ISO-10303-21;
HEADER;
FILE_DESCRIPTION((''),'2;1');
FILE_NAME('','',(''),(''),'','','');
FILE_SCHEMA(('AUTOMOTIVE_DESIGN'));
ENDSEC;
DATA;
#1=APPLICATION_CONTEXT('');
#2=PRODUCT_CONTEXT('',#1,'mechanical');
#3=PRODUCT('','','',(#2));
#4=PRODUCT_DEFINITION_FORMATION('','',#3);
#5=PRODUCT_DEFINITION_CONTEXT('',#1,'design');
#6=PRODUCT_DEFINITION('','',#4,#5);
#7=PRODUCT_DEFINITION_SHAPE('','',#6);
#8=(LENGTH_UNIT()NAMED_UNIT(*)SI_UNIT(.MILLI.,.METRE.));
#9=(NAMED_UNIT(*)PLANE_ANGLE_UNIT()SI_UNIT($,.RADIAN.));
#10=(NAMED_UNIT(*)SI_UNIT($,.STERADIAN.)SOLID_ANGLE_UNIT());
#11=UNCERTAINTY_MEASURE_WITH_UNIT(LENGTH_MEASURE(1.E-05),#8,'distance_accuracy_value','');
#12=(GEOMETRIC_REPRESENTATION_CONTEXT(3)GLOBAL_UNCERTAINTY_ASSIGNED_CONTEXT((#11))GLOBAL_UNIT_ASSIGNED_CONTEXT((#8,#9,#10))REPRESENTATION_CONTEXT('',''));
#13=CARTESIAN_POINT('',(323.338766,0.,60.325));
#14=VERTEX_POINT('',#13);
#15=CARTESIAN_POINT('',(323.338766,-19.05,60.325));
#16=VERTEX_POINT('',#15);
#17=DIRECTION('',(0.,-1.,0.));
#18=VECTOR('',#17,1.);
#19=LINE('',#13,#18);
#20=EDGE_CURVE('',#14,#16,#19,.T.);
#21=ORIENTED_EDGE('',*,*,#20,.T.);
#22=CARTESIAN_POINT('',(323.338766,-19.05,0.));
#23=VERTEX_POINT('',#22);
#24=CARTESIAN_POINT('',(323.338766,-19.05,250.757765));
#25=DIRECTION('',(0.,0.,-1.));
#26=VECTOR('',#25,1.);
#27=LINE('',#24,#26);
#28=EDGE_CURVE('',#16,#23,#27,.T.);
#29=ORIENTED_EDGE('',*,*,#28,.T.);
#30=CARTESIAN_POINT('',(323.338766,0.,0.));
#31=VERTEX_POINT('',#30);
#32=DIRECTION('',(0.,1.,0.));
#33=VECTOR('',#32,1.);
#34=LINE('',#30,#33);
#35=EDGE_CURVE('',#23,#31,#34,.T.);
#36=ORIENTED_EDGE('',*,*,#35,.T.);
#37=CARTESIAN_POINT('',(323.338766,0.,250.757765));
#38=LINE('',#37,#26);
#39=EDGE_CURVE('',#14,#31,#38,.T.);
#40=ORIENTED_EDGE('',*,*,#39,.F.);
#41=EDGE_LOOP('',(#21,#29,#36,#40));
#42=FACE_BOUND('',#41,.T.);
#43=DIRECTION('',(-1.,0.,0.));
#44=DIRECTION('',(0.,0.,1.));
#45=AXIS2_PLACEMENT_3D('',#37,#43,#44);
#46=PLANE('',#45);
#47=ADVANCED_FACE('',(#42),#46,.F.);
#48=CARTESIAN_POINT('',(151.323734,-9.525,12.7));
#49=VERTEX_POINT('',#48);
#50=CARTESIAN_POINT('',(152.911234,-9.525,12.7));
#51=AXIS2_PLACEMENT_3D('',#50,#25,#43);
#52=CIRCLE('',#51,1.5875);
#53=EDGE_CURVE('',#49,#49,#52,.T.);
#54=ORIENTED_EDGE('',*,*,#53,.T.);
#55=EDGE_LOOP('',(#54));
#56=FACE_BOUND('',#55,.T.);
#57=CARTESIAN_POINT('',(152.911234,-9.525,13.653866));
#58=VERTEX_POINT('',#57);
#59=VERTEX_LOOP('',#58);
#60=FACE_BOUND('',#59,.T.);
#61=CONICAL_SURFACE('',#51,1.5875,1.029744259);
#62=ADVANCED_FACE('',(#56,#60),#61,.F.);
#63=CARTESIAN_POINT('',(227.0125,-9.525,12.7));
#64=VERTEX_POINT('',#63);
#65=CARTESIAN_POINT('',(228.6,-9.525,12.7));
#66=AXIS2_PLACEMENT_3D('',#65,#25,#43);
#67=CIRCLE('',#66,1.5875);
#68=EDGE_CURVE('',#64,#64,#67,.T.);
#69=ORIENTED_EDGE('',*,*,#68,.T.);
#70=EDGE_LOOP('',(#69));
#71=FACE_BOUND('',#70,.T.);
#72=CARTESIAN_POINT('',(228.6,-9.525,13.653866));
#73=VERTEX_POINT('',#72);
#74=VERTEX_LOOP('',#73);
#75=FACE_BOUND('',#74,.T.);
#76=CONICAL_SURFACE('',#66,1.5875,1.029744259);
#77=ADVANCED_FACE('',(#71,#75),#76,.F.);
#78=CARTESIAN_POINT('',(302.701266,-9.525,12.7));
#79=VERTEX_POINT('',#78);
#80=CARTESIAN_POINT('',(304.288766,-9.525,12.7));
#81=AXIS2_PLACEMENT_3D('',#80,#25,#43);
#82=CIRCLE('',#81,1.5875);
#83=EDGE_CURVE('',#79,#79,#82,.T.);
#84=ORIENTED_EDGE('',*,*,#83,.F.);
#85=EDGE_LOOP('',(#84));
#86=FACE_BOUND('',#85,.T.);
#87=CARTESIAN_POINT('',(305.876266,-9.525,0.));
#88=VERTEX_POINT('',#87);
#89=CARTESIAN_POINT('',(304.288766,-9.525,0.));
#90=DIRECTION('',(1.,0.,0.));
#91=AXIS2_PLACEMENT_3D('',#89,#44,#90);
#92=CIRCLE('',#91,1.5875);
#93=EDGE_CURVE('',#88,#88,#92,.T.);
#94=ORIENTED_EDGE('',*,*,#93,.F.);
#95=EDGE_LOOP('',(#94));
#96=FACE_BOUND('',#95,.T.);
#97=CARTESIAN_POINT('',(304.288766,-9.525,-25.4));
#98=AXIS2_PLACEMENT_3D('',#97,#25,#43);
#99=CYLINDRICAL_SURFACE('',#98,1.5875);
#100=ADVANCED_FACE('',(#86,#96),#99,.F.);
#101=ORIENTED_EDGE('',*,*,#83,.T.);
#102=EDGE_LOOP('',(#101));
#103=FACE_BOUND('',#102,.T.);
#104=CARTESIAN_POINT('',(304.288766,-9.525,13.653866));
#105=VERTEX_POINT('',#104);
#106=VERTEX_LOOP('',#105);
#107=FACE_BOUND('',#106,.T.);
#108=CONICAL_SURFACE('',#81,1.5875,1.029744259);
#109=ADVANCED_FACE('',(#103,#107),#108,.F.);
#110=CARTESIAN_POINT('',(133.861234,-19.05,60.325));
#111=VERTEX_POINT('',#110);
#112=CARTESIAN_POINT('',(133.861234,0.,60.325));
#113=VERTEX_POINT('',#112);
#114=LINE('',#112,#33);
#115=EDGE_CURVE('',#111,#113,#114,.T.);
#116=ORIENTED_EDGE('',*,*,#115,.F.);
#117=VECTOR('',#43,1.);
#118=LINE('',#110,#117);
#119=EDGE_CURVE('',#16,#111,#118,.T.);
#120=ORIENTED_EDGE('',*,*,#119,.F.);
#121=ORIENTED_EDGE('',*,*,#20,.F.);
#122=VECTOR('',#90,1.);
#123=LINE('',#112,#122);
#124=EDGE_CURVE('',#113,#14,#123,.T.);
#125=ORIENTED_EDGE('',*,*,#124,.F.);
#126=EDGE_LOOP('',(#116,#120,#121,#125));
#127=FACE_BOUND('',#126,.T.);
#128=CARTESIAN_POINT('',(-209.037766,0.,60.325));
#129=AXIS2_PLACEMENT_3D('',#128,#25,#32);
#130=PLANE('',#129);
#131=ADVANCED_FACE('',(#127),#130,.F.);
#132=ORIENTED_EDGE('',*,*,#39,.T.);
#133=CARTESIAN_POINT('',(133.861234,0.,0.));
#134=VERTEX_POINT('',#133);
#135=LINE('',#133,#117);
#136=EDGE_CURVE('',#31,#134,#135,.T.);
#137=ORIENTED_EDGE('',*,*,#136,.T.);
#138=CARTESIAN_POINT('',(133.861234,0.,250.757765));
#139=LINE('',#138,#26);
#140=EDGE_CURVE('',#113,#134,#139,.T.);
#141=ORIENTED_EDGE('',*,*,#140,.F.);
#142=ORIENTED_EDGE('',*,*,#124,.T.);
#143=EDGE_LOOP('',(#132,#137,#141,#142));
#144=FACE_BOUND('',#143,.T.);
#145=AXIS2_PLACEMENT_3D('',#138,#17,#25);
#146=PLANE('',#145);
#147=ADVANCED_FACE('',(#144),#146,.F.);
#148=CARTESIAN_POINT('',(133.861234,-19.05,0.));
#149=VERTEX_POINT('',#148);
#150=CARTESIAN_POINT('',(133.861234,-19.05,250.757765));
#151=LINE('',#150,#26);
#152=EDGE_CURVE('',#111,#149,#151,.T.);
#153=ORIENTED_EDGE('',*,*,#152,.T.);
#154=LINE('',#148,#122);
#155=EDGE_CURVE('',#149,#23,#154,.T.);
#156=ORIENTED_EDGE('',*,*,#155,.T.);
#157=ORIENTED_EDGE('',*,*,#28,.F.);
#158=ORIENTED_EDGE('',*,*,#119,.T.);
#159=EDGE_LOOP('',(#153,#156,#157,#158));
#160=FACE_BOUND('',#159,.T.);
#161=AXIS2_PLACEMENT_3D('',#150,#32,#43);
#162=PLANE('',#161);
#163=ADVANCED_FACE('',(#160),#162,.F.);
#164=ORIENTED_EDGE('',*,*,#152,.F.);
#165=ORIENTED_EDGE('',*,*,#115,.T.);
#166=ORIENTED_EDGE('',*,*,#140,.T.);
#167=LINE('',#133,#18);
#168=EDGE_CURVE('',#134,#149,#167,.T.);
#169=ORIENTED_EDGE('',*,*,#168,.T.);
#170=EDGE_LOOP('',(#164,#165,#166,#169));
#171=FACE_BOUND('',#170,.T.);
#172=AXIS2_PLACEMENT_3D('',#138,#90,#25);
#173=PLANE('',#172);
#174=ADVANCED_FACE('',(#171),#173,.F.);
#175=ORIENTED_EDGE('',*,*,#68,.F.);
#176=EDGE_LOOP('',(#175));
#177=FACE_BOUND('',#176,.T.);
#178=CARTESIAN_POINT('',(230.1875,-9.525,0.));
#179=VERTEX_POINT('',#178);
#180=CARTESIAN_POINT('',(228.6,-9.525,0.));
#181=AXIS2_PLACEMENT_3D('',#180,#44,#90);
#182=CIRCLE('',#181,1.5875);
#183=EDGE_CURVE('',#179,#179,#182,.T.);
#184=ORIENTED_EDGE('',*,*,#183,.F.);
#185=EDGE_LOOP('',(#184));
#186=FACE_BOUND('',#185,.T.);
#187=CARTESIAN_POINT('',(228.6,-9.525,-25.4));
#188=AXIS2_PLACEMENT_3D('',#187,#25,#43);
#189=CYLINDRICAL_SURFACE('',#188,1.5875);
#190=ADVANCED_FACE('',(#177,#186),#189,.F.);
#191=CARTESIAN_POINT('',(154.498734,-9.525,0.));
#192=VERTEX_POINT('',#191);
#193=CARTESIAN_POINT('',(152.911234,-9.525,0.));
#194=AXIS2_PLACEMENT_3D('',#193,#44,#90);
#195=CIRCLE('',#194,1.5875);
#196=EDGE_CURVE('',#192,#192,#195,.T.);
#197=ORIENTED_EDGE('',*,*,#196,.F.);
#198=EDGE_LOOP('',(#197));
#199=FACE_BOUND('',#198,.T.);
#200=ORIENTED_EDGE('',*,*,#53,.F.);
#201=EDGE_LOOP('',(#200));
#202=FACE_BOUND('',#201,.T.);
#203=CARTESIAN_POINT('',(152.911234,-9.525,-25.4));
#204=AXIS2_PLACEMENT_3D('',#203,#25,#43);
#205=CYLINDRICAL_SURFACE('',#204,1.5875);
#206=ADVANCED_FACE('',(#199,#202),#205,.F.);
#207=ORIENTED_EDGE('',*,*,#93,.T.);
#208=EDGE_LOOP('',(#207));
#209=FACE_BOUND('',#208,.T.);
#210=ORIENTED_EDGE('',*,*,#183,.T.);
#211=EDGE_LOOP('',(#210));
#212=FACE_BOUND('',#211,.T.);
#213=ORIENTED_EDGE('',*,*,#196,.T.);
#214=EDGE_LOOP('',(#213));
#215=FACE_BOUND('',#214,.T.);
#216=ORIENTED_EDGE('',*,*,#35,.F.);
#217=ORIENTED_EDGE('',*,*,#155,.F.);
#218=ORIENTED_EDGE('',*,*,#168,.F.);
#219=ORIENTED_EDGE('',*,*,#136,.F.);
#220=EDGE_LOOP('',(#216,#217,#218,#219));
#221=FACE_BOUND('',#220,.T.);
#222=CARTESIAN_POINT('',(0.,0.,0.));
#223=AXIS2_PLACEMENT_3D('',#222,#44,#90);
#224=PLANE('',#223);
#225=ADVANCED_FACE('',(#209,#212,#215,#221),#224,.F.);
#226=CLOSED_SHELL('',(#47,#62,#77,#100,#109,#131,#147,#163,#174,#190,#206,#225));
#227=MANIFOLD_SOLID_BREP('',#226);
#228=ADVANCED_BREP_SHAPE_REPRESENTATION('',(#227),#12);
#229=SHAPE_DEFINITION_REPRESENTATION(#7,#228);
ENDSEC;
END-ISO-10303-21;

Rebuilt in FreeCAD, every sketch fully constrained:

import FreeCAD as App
import Part
import Sketcher

V = App.Vector
Q = App.Units.Quantity

doc = App.newDocument("Part")
body = doc.addObject("PartDesign::Body", "Body")

sketch1 = body.newObject("Sketcher::SketchObject", "Sketch")
sketch1.AttachmentSupport = (doc.getObject("XY_Plane"), [""])
sketch1.MapMode = "FlatFace"
sketch1.addGeometry([
    Part.LineSegment(V(133.861234, 0, 0), V(133.861234, -19.05, 0)),
    Part.LineSegment(V(133.861234, -19.05, 0), V(323.338766, -19.05, 0)),
    Part.LineSegment(V(323.338766, -19.05, 0), V(323.338766, 0, 0)),
    Part.LineSegment(V(323.338766, 0, 0), V(133.861234, 0, 0)),
], False)
sketch1.addConstraint([
    Sketcher.Constraint("Coincident", 0, 2, 1, 1),
    Sketcher.Constraint("Coincident", 1, 2, 2, 1),
    Sketcher.Constraint("Coincident", 2, 2, 3, 1),
    Sketcher.Constraint("Coincident", 3, 2, 0, 1),
    Sketcher.Constraint("Vertical", 0),
    Sketcher.Constraint("Horizontal", 1),
    Sketcher.Constraint("Vertical", 2),
    Sketcher.Constraint("Horizontal", 3),
    Sketcher.Constraint("PointOnObject", 2, 2, -1),
    Sketcher.Constraint("DistanceY", 0, 2, 0, 1, Q("0.75 in")),
    Sketcher.Constraint("DistanceX", 1, 1, 1, 2, Q("189.477533 mm")),
    Sketcher.Constraint("DistanceX", -1, 1, 0, 2, Q("133.861234 mm")),
])
pad1 = body.newObject("PartDesign::Pad", "Pad")
pad1.Profile = sketch1
pad1.Length = Q("2.375 in")

sketch2 = body.newObject("Sketcher::SketchObject", "Sketch001")
sketch2.AttachmentSupport = (doc.getObject("XY_Plane"), [""])
sketch2.MapMode = "FlatFace"
sketch2.AttachmentOffset = App.Placement(V(0, 0, -1 * 25.4), App.Rotation())
sketch2.addGeometry([
    Part.Circle(V(304.288766, -9.525, 0), V(0, 0, 1), 1.5875),
    Part.Circle(V(10.036234, -31.75, 0), V(0, 0, 1), 1.5875),
    Part.Circle(V(10.036234, -218.821, 0), V(0, 0, 1), 1.5875),
    Part.Circle(V(10.036234, -418.592, 0), V(0, 0, 1), 1.5875),
    Part.Circle(V(124.336234, -19.05, 0), V(0, 0, 1), 1.5875),
    Part.Circle(V(124.336234, -149.225, 0), V(0, 0, 1), 1.5875),
    Part.Circle(V(124.336234, -279.4, 0), V(0, 0, 1), 1.5875),
    Part.Circle(V(108.461234, -330.2, 0), V(0, 0, 1), 1.5875),
    Part.Circle(V(108.461234, -441.325, 0), V(0, 0, 1), 1.5875),
    Part.Circle(V(348.738766, -441.325, 0), V(0, 0, 1), 1.5875),
    Part.Circle(V(348.738766, -330.2, 0), V(0, 0, 1), 1.5875),
    Part.Circle(V(332.863766, -279.4, 0), V(0, 0, 1), 1.5875),
    Part.Circle(V(332.863766, -149.225, 0), V(0, 0, 1), 1.5875),
    Part.Circle(V(332.863766, -19.05, 0), V(0, 0, 1), 1.5875),
    Part.Circle(V(447.163766, -418.592, 0), V(0, 0, 1), 1.5875),
    Part.Circle(V(447.163766, -218.821, 0), V(0, 0, 1), 1.5875),
    Part.Circle(V(447.163766, -31.75, 0), V(0, 0, 1), 1.5875),
    Part.Circle(V(228.6, -304.8, 0), V(0, 0, 1), 1.5875),
    Part.Circle(V(121.161234, -304.8, 0), V(0, 0, 1), 1.5875),
    Part.Circle(V(336.038766, -304.8, 0), V(0, 0, 1), 1.5875),
    Part.Circle(V(152.911234, -276.225, 0), V(0, 0, 1), 1.5875),
    Part.Circle(V(228.6, -276.225, 0), V(0, 0, 1), 1.5875),
    Part.Circle(V(304.288766, -276.225, 0), V(0, 0, 1), 1.5875),
    Part.Circle(V(152.911234, -9.525, 0), V(0, 0, 1), 1.5875),
    Part.Circle(V(228.6, -9.525, 0), V(0, 0, 1), 1.5875),
], False)
sketch2.addConstraint([
    Sketcher.Constraint("Equal", 0, 1),
    Sketcher.Constraint("Equal", 1, 2),
    Sketcher.Constraint("Equal", 2, 3),
    Sketcher.Constraint("Equal", 3, 4),
    Sketcher.Constraint("Equal", 4, 5),
    Sketcher.Constraint("Equal", 5, 6),
    Sketcher.Constraint("Equal", 6, 7),
    Sketcher.Constraint("Equal", 7, 8),
    Sketcher.Constraint("Equal", 8, 9),
    Sketcher.Constraint("Equal", 9, 10),
    Sketcher.Constraint("Equal", 10, 11),
    Sketcher.Constraint("Equal", 11, 12),
    Sketcher.Constraint("Equal", 12, 13),
    Sketcher.Constraint("Equal", 13, 14),
    Sketcher.Constraint("Equal", 14, 15),
    Sketcher.Constraint("Equal", 15, 16),
    Sketcher.Constraint("Equal", 16, 17),
    Sketcher.Constraint("Equal", 17, 18),
    Sketcher.Constraint("Equal", 18, 19),
    Sketcher.Constraint("Equal", 19, 20),
    Sketcher.Constraint("Equal", 20, 21),
    Sketcher.Constraint("Equal", 21, 22),
    Sketcher.Constraint("Equal", 22, 23),
    Sketcher.Constraint("Equal", 23, 24),
    Sketcher.Constraint("Horizontal", 8, 3, 9, 3),
    Sketcher.Constraint("Horizontal", 7, 3, 10, 3),
    Sketcher.Constraint("Horizontal", 6, 3, 11, 3),
    Sketcher.Constraint("Horizontal", 5, 3, 12, 3),
    Sketcher.Constraint("Horizontal", 4, 3, 13, 3),
    Sketcher.Constraint("Horizontal", 3, 3, 14, 3),
    Sketcher.Constraint("Horizontal", 2, 3, 15, 3),
    Sketcher.Constraint("Horizontal", 1, 3, 16, 3),
    Sketcher.Constraint("Horizontal", 17, 3, 18, 3),
    Sketcher.Constraint("Horizontal", 18, 3, 19, 3),
    Sketcher.Constraint("Horizontal", 20, 3, 21, 3),
    Sketcher.Constraint("Horizontal", 21, 3, 22, 3),
    Sketcher.Constraint("Horizontal", 0, 3, 23, 3),
    Sketcher.Constraint("Horizontal", 23, 3, 24, 3),
    Sketcher.Constraint("Vertical", 1, 3, 2, 3),
    Sketcher.Constraint("Vertical", 2, 3, 3, 3),
    Sketcher.Constraint("Vertical", 4, 3, 5, 3),
    Sketcher.Constraint("Vertical", 5, 3, 6, 3),
    Sketcher.Constraint("Vertical", 7, 3, 8, 3),
    Sketcher.Constraint("Vertical", 9, 3, 10, 3),
    Sketcher.Constraint("Vertical", 11, 3, 12, 3),
    Sketcher.Constraint("Vertical", 12, 3, 13, 3),
    Sketcher.Constraint("Vertical", 14, 3, 15, 3),
    Sketcher.Constraint("Vertical", 15, 3, 16, 3),
    Sketcher.Constraint("Vertical", 17, 3, 21, 3),
    Sketcher.Constraint("Vertical", 0, 3, 22, 3),
    Sketcher.Constraint("Vertical", 20, 3, 23, 3),
    Sketcher.Constraint("Vertical", 21, 3, 24, 3),
    Sketcher.Constraint("Diameter", 0, Q("0.125 in")),
    Sketcher.Constraint("DistanceY", 6, 3, -1, 1, Q("11 in")),
    Sketcher.Constraint("DistanceY", 7, 3, -1, 1, Q("13 in")),
    Sketcher.Constraint("DistanceX", -1, 1, 17, 3, Q("9 in")),
    Sketcher.Constraint("DistanceY", 17, 3, -1, 1, Q("12 in")),
    Sketcher.Constraint("DistanceY", 20, 3, 5, 3, Q("5 in")),
    Sketcher.Constraint("DistanceX", 1, 3, 4, 3, Q("4.5 in")),
    Sketcher.Constraint("DistanceY", 1, 3, 4, 3, Q("0.5 in")),
    Sketcher.Constraint("DistanceY", 5, 3, 0, 3, Q("5.5 in")),
    Sketcher.Constraint("DistanceY", 8, 3, 5, 3, Q("11.5 in")),
    Sketcher.Constraint("DistanceX", 11, 3, 14, 3, Q("4.5 in")),
    Sketcher.Constraint("DistanceX", 7, 3, 18, 3, Q("0.5 in")),
    Sketcher.Constraint("DistanceX", 19, 3, 10, 3, Q("0.5 in")),
    Sketcher.Constraint("DistanceY", 1, 3, -1, 1, Q("1.25 in")),
    Sketcher.Constraint("DistanceY", 3, 3, -1, 1, Q("16.48 in")),
    Sketcher.Constraint("DistanceY", 2, 3, 0, 3, Q("8.24 in")),
    Sketcher.Constraint("DistanceX", 18, 3, 20, 3, Q("1.25 in")),
    Sketcher.Constraint("DistanceX", 22, 3, 19, 3, Q("1.25 in")),
    Sketcher.Constraint("DistanceY", 0, 3, -1, 1, Q("0.375 in")),
    Sketcher.Constraint("DistanceX", 7, 3, 6, 3, Q("0.625 in")),
    Sketcher.Constraint("DistanceX", 11, 3, 10, 3, Q("0.625 in")),
    Sketcher.Constraint("DistanceX", -1, 1, 0, 3, Q("304.288766 mm")),
    Sketcher.Constraint("DistanceX", -1, 1, 1, 3, Q("10.036234 mm")),
])
doc.recompute()
hole = body.newObject("PartDesign::Hole", "Hole")
hole.Profile = sketch2
hole.ThreadType = "None"
hole.Diameter = Q("0.125 in")
hole.DepthType = "Dimension"
hole.Depth = Q("1.5 in")
hole.DrillPoint = "Angled"
hole.DrillPointAngle = 118
hole.HoleCutType = "Countersink"
hole.HoleCutDiameter = Q("0.4 in")
hole.HoleCutCountersinkAngle = 82
hole.Reversed = True

doc.recompute()
